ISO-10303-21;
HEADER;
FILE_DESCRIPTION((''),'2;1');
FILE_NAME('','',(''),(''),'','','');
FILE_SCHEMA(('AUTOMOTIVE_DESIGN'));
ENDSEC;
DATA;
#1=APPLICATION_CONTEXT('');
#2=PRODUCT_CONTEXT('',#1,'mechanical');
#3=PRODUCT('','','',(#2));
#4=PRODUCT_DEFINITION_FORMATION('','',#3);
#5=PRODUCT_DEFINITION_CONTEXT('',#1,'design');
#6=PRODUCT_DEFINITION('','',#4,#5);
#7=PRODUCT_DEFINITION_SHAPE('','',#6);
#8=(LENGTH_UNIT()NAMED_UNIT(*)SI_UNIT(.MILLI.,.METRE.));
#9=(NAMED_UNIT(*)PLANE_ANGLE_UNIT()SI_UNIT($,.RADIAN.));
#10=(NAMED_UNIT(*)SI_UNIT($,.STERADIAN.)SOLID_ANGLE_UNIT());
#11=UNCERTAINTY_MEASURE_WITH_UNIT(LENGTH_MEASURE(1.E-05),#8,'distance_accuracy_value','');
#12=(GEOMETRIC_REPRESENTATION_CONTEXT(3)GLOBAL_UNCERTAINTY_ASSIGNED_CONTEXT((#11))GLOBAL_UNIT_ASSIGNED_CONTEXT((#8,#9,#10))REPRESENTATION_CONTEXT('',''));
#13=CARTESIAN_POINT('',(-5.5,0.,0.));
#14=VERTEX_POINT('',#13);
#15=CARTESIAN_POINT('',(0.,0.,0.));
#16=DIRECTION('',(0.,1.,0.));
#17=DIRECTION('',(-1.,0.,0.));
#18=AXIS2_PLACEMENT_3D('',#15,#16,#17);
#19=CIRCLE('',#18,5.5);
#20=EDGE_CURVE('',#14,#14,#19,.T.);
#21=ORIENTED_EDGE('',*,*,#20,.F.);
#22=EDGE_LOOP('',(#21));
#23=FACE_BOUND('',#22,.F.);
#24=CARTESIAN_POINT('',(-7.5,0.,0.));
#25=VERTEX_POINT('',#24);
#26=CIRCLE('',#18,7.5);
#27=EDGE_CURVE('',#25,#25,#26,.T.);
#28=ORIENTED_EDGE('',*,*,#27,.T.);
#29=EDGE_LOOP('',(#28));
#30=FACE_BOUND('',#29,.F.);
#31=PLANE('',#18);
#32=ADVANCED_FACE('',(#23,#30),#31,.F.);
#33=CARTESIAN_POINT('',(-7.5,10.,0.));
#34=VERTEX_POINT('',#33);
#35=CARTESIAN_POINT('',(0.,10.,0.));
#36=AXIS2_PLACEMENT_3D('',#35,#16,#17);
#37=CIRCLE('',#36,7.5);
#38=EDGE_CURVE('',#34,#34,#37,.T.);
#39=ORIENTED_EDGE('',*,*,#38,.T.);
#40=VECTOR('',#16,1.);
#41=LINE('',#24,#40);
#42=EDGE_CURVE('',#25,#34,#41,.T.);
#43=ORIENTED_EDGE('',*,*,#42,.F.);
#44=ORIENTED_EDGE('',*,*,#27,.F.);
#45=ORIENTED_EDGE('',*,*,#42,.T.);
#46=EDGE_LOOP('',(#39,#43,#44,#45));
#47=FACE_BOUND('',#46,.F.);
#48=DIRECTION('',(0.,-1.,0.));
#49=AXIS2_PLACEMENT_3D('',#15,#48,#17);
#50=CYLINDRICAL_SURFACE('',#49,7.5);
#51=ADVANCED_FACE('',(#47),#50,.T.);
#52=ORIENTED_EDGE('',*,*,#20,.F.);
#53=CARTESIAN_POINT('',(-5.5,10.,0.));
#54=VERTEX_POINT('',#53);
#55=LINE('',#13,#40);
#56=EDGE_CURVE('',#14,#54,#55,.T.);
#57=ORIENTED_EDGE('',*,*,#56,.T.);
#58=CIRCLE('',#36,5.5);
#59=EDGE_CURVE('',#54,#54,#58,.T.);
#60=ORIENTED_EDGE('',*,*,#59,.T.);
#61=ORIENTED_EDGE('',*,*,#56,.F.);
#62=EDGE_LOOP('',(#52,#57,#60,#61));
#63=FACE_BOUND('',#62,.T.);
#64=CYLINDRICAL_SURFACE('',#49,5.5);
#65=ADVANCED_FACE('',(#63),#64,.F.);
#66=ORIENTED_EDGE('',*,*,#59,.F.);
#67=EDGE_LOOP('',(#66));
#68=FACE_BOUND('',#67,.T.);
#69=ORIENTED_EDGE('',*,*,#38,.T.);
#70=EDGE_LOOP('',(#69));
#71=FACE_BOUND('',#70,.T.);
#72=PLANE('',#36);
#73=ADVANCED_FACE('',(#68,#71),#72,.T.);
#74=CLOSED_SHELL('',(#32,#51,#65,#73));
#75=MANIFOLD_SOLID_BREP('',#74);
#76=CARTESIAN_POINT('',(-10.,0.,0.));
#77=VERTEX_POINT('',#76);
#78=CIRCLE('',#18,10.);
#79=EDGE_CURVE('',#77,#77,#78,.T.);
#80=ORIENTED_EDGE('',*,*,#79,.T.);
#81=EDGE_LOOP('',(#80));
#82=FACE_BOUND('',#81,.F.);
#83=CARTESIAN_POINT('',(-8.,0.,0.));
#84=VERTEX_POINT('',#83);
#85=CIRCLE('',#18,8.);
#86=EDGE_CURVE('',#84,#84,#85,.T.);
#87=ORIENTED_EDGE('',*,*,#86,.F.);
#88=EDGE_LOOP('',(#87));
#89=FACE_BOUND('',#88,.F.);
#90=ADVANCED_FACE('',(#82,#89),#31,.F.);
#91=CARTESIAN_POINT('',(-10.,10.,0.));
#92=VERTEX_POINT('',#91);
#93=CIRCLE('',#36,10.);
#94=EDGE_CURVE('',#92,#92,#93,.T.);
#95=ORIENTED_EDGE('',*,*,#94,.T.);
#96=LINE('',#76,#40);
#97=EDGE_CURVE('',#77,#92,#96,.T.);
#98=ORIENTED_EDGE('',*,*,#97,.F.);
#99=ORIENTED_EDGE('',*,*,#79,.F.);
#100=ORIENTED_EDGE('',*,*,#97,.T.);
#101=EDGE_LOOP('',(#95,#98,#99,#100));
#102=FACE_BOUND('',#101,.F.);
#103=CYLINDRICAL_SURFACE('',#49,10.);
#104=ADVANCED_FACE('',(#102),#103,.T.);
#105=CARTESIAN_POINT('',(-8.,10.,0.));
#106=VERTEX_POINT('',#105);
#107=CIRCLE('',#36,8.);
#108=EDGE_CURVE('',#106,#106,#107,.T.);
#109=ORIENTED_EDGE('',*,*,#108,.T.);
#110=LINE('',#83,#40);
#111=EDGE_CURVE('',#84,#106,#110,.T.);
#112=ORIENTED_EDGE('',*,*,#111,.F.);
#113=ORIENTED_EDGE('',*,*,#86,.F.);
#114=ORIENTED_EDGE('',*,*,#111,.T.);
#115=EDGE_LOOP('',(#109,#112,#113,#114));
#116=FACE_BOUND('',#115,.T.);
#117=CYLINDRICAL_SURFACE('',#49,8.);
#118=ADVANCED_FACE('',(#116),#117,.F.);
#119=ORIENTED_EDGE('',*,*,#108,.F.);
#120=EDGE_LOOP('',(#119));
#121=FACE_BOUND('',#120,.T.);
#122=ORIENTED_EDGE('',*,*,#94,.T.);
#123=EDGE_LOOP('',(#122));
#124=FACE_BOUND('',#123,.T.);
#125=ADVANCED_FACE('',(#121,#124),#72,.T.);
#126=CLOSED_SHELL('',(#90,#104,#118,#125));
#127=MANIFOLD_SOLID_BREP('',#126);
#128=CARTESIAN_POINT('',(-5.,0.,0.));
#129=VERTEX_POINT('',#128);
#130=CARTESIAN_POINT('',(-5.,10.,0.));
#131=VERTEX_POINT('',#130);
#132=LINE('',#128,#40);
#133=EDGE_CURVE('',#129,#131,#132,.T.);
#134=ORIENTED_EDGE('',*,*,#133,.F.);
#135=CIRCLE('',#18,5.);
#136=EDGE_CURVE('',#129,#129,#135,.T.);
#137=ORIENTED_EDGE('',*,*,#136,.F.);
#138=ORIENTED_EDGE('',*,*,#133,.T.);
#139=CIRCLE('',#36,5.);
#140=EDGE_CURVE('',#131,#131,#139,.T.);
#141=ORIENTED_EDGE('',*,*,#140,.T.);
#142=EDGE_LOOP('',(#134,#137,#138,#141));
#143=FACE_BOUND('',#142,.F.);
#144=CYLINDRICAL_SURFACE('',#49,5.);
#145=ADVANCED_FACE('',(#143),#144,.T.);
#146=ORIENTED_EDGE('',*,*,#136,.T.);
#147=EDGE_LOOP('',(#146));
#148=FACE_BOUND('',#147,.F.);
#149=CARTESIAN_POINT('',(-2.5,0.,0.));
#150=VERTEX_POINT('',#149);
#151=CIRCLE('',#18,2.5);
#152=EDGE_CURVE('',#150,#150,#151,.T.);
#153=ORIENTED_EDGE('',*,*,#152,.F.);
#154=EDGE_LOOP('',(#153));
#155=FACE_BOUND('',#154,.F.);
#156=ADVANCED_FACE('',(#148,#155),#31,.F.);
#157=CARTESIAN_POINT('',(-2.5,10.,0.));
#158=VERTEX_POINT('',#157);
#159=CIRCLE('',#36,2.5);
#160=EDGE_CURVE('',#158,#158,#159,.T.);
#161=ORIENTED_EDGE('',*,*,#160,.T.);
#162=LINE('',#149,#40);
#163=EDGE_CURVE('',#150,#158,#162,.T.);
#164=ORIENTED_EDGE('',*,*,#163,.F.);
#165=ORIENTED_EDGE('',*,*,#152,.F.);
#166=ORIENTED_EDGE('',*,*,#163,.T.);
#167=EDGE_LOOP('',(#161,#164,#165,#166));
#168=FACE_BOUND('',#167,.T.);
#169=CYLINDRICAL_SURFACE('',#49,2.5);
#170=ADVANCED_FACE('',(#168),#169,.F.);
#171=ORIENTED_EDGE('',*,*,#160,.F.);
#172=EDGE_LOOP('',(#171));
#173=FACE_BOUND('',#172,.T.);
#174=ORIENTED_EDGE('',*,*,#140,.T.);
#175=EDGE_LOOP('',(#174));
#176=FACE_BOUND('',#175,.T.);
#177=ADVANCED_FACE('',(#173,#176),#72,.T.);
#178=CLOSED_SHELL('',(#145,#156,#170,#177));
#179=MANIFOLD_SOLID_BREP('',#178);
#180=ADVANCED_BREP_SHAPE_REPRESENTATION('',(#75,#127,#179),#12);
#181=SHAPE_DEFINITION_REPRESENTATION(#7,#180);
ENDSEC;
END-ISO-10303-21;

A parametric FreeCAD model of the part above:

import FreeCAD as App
import Part
import Sketcher
from FreeCAD import Vector
Q = App.Units.Quantity

doc = App.newDocument("Part")
body = doc.addObject("PartDesign::Body", "Body")
body.AllowCompound = True

# Sketch on XZ plane
sketch1 = doc.addObject("Sketcher::SketchObject", "Sketch")
body.addObject(sketch1)
sketch1.AttachmentSupport = (doc.XZ_Plane, [""])
sketch1.MapMode = "FlatFace"
sketch1.addGeometry([
    Part.Circle(Vector(0, 0, 0), Vector(0, 0, 1), 7.5),  # 0
    Part.Circle(Vector(0, 0, 0), Vector(0, 0, 1), 5.5),  # 1
    Part.Circle(Vector(0, 0, 0), Vector(0, 0, 1), 5),  # 2
    Part.Circle(Vector(0, 0, 0), Vector(0, 0, 1), 2.5),  # 3
    Part.Circle(Vector(0, 0, 0), Vector(0, 0, 1), 10),  # 4
    Part.Circle(Vector(0, 0, 0), Vector(0, 0, 1), 8),  # 5
], False)
sketch1.addConstraint([
    Sketcher.Constraint("Coincident", 0, 3, -1, 1),
    Sketcher.Constraint("Coincident", 1, 3, -1, 1),
    Sketcher.Constraint("Coincident", 2, 3, -1, 1),
    Sketcher.Constraint("Coincident", 3, 3, -1, 1),
    Sketcher.Constraint("Coincident", 4, 3, -1, 1),
    Sketcher.Constraint("Coincident", 5, 3, -1, 1),
    Sketcher.Constraint("Diameter", 0, Q("15 mm")),
    Sketcher.Constraint("Diameter", 1, Q("11 mm")),
    Sketcher.Constraint("Diameter", 2, Q("10 mm")),
    Sketcher.Constraint("Diameter", 3, Q("5 mm")),
    Sketcher.Constraint("Diameter", 4, Q("20 mm")),
    Sketcher.Constraint("Diameter", 5, Q("16 mm")),
])
pad1 = doc.addObject("PartDesign::Pad", "Pad")
body.addObject(pad1)
pad1.Profile = sketch1
pad1.Length = 10
pad1.Reversed = True

doc.recompute()
